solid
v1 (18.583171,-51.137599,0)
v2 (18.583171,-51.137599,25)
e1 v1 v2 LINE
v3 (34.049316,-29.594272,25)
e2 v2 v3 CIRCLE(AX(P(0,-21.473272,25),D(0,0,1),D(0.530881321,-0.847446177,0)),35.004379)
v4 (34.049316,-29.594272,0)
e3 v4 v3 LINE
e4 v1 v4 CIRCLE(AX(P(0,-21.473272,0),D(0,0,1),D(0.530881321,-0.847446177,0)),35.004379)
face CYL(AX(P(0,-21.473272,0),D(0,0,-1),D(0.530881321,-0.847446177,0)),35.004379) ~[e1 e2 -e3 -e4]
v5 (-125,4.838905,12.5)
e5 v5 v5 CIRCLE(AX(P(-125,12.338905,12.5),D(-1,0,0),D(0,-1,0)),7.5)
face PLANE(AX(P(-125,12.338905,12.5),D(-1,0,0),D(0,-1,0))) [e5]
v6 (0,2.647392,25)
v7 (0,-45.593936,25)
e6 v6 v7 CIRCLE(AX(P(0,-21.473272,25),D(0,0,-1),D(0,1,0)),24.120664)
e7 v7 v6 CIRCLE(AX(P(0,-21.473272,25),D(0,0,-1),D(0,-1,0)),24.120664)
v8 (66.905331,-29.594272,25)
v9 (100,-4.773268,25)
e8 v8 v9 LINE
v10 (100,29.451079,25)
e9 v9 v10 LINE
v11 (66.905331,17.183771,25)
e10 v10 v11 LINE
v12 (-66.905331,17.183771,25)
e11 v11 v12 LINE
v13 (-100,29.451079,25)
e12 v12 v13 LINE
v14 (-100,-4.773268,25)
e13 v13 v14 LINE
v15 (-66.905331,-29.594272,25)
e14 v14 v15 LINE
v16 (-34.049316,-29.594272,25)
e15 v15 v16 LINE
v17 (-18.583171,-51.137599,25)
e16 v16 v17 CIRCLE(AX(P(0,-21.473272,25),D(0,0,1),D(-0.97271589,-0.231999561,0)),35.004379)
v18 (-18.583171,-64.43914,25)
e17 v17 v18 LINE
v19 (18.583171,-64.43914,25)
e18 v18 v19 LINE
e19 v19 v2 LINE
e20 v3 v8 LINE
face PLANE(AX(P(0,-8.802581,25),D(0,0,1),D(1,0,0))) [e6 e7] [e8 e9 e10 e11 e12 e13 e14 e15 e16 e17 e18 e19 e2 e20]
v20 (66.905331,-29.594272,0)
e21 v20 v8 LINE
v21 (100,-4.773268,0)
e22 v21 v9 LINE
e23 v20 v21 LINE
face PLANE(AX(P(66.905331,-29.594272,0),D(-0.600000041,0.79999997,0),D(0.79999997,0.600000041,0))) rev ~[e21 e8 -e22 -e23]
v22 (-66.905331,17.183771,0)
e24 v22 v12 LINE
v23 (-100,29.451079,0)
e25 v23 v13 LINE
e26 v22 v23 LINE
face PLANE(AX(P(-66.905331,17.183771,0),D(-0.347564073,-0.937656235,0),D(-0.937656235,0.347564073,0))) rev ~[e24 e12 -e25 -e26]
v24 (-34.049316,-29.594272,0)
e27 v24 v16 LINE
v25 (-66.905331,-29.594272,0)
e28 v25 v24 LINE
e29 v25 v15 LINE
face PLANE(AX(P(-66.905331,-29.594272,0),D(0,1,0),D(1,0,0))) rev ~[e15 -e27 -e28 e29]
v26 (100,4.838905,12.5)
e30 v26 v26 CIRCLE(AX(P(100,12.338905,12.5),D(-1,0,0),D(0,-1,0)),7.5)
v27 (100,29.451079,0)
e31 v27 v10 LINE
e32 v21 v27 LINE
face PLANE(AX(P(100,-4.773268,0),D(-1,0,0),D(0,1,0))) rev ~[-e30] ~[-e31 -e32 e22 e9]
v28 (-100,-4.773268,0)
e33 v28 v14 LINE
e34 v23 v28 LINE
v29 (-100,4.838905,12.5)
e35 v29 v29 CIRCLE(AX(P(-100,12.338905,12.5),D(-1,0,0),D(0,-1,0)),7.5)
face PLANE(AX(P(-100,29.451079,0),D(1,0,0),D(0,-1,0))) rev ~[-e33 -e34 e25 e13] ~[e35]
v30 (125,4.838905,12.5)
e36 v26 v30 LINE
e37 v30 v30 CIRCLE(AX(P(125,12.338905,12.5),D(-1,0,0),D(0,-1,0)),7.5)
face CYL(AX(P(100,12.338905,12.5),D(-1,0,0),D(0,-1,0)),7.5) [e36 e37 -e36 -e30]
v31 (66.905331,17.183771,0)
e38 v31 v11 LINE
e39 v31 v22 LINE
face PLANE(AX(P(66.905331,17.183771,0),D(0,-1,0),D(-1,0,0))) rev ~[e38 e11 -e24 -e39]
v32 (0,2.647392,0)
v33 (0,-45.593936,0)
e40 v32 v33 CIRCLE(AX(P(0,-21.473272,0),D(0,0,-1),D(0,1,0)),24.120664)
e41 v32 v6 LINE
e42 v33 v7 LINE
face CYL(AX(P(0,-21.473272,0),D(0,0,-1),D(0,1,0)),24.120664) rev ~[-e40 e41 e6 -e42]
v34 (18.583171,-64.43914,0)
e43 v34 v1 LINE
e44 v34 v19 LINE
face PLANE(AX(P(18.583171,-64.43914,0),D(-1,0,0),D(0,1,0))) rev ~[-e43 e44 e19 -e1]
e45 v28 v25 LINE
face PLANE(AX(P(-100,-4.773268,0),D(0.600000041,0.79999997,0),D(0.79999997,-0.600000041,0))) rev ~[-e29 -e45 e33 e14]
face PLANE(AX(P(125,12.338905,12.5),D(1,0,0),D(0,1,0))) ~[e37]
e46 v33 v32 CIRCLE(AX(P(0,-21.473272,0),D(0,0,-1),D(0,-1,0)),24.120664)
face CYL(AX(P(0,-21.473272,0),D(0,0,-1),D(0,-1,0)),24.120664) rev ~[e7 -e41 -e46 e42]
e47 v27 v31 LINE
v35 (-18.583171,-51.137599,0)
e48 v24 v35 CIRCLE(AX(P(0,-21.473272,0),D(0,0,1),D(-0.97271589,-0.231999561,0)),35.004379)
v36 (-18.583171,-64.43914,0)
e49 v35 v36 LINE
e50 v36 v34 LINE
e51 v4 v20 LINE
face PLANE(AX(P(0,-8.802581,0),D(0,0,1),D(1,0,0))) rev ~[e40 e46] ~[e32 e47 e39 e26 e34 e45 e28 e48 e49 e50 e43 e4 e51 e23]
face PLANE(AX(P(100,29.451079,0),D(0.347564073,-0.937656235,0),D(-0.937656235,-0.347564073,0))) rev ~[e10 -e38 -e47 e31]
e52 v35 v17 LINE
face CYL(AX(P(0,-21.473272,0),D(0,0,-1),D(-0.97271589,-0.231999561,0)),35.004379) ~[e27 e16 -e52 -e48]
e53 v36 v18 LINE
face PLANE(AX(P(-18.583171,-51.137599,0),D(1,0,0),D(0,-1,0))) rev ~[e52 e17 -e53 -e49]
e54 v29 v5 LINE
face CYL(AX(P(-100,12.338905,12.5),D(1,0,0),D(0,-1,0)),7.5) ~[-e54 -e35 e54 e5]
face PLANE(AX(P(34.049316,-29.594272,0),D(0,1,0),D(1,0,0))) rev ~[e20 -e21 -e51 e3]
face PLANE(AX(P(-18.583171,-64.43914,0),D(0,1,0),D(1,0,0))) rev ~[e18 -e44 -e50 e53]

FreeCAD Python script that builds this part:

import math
import FreeCAD as App
import Part
import Sketcher
from FreeCAD import Vector
Q = App.Units.Quantity

doc = App.newDocument("Part")
params = doc.addObject("Spreadsheet::Sheet", "Params")
for row, (alias, value) in enumerate([
    ("pad1_length", "25 mm"),
    ("sketch2_diameter", "15 mm"),
    ("pad2_length", "25 mm"),
], start=1):
    params.set(f"A{row}", alias)
    params.set(f"B{row}", "=" + value)
    params.setAlias(f"B{row}", alias)

body = doc.addObject("PartDesign::Body", "Body")

sketch1 = doc.addObject("Sketcher::SketchObject", "Sketch")
body.addObject(sketch1)
sketch1.AttachmentSupport = (doc.XY_Plane, [""])
sketch1.MapMode = "FlatFace"
sketch1.addGeometry([
    Part.LineSegment(Vector(-19, -64, 0), Vector(19, -64, 0)),
    Part.LineSegment(Vector(19, -64, 0), Vector(19, -51, 0)),
    Part.ArcOfCircle(Part.Circle(Vector(0, -21, 0), Vector(0, 0, 1), 35), math.radians(-58), math.radians(-13)),
    Part.LineSegment(Vector(34, -30, 0), Vector(67, -30, 0)),
    Part.LineSegment(Vector(67, -30, 0), Vector(100, -5, 0)),
    Part.LineSegment(Vector(100, -5, 0), Vector(100, 29, 0)),
    Part.LineSegment(Vector(100, 29, 0), Vector(67, 17, 0)),
    Part.LineSegment(Vector(67, 17, 0), Vector(-67, 17, 0)),
    Part.LineSegment(Vector(-67, 17, 0), Vector(-100, 29, 0)),
    Part.LineSegment(Vector(-100, 29, 0), Vector(-100, -5, 0)),
    Part.LineSegment(Vector(-100, -5, 0), Vector(-67, -30, 0)),
    Part.LineSegment(Vector(-67, -30, 0), Vector(-34, -30, 0)),
    Part.ArcOfCircle(Part.Circle(Vector(0, -21, 0), Vector(0, 0, 1), 35), math.radians(-167), math.radians(-122)),
    Part.LineSegment(Vector(-19, -51, 0), Vector(-19, -64, 0)),
    Part.ArcOfCircle(Part.Circle(Vector(0, -21, 0), Vector(0, 0, 1), 24), math.radians(90), math.radians(270)),
    Part.ArcOfCircle(Part.Circle(Vector(0, -21, 0), Vector(0, 0, 1), 24), math.radians(-90), math.radians(90)),
], False)
sketch1.addConstraint([
    Sketcher.Constraint("Coincident", 0, 2, 1, 1),
    Sketcher.Constraint("Coincident", 1, 2, 2, 1),
    Sketcher.Constraint("Coincident", 2, 2, 3, 1),
    Sketcher.Constraint("Coincident", 3, 2, 4, 1),
    Sketcher.Constraint("Coincident", 4, 2, 5, 1),
    Sketcher.Constraint("Coincident", 5, 2, 6, 1),
    Sketcher.Constraint("Coincident", 6, 2, 7, 1),
    Sketcher.Constraint("Coincident", 7, 2, 8, 1),
    Sketcher.Constraint("Coincident", 8, 2, 9, 1),
    Sketcher.Constraint("Coincident", 9, 2, 10, 1),
    Sketcher.Constraint("Coincident", 10, 2, 11, 1),
    Sketcher.Constraint("Coincident", 11, 2, 12, 1),
    Sketcher.Constraint("Coincident", 12, 2, 13, 1),
    Sketcher.Constraint("Coincident", 13, 2, 0, 1),
    Sketcher.Constraint("Tangent", 14, 1, 15, 2),
    Sketcher.Constraint("Coincident", 15, 1, 14, 2),
    Sketcher.Constraint("Horizontal", 0),
    Sketcher.Constraint("Vertical", 1),
    Sketcher.Constraint("Horizontal", 3),
    Sketcher.Constraint("Vertical", 5),
    Sketcher.Constraint("Horizontal", 7),
    Sketcher.Constraint("Vertical", 9),
    Sketcher.Constraint("Horizontal", 11),
    Sketcher.Constraint("Vertical", 13),
    Sketcher.Constraint("Coincident", 12, 3, 2, 3),
    Sketcher.Constraint("Coincident", 14, 3, 2, 3),
    Sketcher.Constraint("Equal", 2, 12),
    Sketcher.Constraint("Symmetric", 5, 2, 8, 2, -2),
    Sketcher.Constraint("Symmetric", 3, 2, 10, 2, -2),
    Sketcher.Constraint("Symmetric", 1, 2, 12, 2, -2),
    Sketcher.Constraint("PointOnObject", 14, 1, -2),
    Sketcher.Constraint("PointOnObject", 15, 1, -2),
    Sketcher.Constraint("Horizontal", 4, 2, 9, 2),
    Sketcher.Constraint("Vertical", 3, 2, 6, 2),
    Sketcher.Constraint("Vertical", 7, 2, 10, 2),
    Sketcher.Constraint("DistanceX", -1, 1, 4, 2, Q("100 mm")),
    Sketcher.Constraint("Radius", 2, Q("35.004379 mm")),
    Sketcher.Constraint("Radius", 14, Q("24.120664 mm")),
    Sketcher.Constraint("DistanceY", 2, 2, 2, 3, Q("8.121001 mm")),
    Sketcher.Constraint("Distance", 6, Q("35.295098 mm")),
    Sketcher.Constraint("DistanceY", 1, 1, 1, 2, Q("13.301541 mm")),
    Sketcher.Constraint("DistanceY", 1, 2, -1, 1, Q("51.137599 mm")),
    Sketcher.Constraint("DistanceX", 0, 1, 0, 2, Q("37.166342 mm")),
    Sketcher.Constraint("DistanceX", 3, 1, 3, 2, Q("32.856015 mm")),
    Sketcher.Constraint("DistanceY", 5, 1, 5, 2, Q("34.224347 mm")),
    Sketcher.Constraint("DistanceY", 4, 2, -1, 1, Q("4.773268 mm")),
])
pad1 = doc.addObject("PartDesign::Pad", "Pad")
body.addObject(pad1)
pad1.Profile = sketch1
pad1.setExpression("Length", "Params.pad1_length")

sketch2 = doc.addObject("Sketcher::SketchObject", "Sketch001")
body.addObject(sketch2)
sketch2.AttachmentSupport = (doc.YZ_Plane, [""])
sketch2.MapMode = "FlatFace"
sketch2.AttachmentOffset = App.Placement(Vector(0, 0, -100), App.Rotation())
sketch2.addGeometry(Part.Circle(Vector(12, 12, 0), Vector(0, 0, 1), 8), False)
sketch2.addConstraint([
    Sketcher.Constraint("Diameter", 0, Q("15 mm")),
    Sketcher.Constraint("DistanceY", -1, 1, 0, 3, Q("12.5 mm")),
    Sketcher.Constraint("DistanceX", -1, 1, 0, 3, Q("12.338905 mm")),
])
sketch2.setExpression("Constraints[0]", "Params.sketch2_diameter")
pad2 = doc.addObject("PartDesign::Pad", "Pad001")
body.addObject(pad2)
pad2.Profile = sketch2
pad2.setExpression("Length", "Params.pad2_length")
pad2.Reversed = True
body2 = doc.addObject("PartDesign::Body", "Body001")
doc.recompute()

body2.BaseFeature = body
doc.recompute()

mirroring = doc.addObject("Part::Mirroring", "Mirroring")
mirroring.Source = body
mirroring.Base = Vector(0, 0, 0)
mirroring.Normal = Vector(1, 0, 0)
body3 = doc.addObject("PartDesign::Body", "Body002")
body3.BaseFeature = mirroring
boolean = doc.addObject("PartDesign::Boolean", "Boolean")
body2.addObject(boolean)
boolean.Type = "Fuse"
boolean.addObjects([body3])
doc.recompute()
mirroring.Visibility = False

doc.recompute()
